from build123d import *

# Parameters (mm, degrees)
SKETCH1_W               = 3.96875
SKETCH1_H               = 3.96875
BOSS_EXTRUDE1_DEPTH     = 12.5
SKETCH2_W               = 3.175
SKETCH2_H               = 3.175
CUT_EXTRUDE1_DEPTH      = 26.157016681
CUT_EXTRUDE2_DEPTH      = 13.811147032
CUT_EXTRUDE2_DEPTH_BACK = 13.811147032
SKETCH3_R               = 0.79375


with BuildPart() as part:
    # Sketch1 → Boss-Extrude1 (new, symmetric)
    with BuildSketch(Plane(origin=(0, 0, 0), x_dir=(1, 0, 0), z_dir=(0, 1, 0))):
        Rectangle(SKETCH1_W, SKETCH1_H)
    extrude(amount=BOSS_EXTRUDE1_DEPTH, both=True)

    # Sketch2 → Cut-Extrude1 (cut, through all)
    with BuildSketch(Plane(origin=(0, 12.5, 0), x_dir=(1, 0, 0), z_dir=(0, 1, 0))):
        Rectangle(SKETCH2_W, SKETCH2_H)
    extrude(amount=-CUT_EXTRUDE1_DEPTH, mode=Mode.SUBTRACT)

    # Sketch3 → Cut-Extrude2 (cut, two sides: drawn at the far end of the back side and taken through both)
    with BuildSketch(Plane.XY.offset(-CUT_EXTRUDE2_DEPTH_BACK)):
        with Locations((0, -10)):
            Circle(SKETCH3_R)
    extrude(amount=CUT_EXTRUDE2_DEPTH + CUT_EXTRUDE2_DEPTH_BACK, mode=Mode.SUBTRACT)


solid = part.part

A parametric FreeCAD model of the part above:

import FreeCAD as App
import Part
import Sketcher
Q = App.Units.Quantity

doc = App.newDocument("Part")
body = doc.addObject("PartDesign::Body", "Body")

sketch1 = doc.addObject("Sketcher::SketchObject", "Sketch")
body.addObject(sketch1)
sketch1.AttachmentSupport = (doc.XZ_Plane, [""])
sketch1.MapMode = "FlatFace"
sketch1.addGeometry([
    Part.LineSegment(App.Vector(-2, -2, 0), App.Vector(-2, 2, 0)),
    Part.LineSegment(App.Vector(-2, 2, 0), App.Vector(2, 2, 0)),
    Part.LineSegment(App.Vector(2, 2, 0), App.Vector(2, -2, 0)),
    Part.LineSegment(App.Vector(2, -2, 0), App.Vector(-2, -2, 0)),
], False)
sketch1.addConstraint([
    Sketcher.Constraint("Coincident", 0, 2, 1, 1),
    Sketcher.Constraint("Coincident", 1, 2, 2, 1),
    Sketcher.Constraint("Coincident", 2, 2, 3, 1),
    Sketcher.Constraint("Coincident", 3, 2, 0, 1),
    Sketcher.Constraint("Vertical", 0),
    Sketcher.Constraint("Horizontal", 1),
    Sketcher.Constraint("Vertical", 2),
    Sketcher.Constraint("Horizontal", 3),
    Sketcher.Constraint("Symmetric", 0, 2, 2, 2, -1, 1),
    Sketcher.Constraint("Equal", 3, 0),
    Sketcher.Constraint("DistanceX", 1, 1, 1, 2, Q("0.15625 in")),
])
pad1 = doc.addObject("PartDesign::Pad", "Pad")
body.addObject(pad1)
pad1.Profile = sketch1
pad1.Length = 25
pad1.Midplane = True

sketch2 = doc.addObject("Sketcher::SketchObject", "Sketch001")
body.addObject(sketch2)
sketch2.AttachmentSupport = (doc.XZ_Plane, [""])
sketch2.MapMode = "FlatFace"
sketch2.AttachmentOffset = App.Placement(App.Vector(0, 0, -12.5), App.Rotation())
sketch2.addGeometry([
    Part.LineSegment(App.Vector(-1.6, -1.6, 0), App.Vector(-1.6, 1.6, 0)),
    Part.LineSegment(App.Vector(-1.6, 1.6, 0), App.Vector(1.6, 1.6, 0)),
    Part.LineSegment(App.Vector(1.6, 1.6, 0), App.Vector(1.6, -1.6, 0)),
    Part.LineSegment(App.Vector(1.6, -1.6, 0), App.Vector(-1.6, -1.6, 0)),
], False)
sketch2.addConstraint([
    Sketcher.Constraint("Coincident", 0, 2, 1, 1),
    Sketcher.Constraint("Coincident", 1, 2, 2, 1),
    Sketcher.Constraint("Coincident", 2, 2, 3, 1),
    Sketcher.Constraint("Coincident", 3, 2, 0, 1),
    Sketcher.Constraint("Vertical", 0),
    Sketcher.Constraint("Horizontal", 1),
    Sketcher.Constraint("Vertical", 2),
    Sketcher.Constraint("Horizontal", 3),
    Sketcher.Constraint("Symmetric", 0, 2, 2, 2, -1, 1),
    Sketcher.Constraint("Equal", 3, 0),
    Sketcher.Constraint("DistanceX", 1, 1, 1, 2, Q("0.125 in")),
])
pocket1 = doc.addObject("PartDesign::Pocket", "Pocket")
body.addObject(pocket1)
pocket1.Profile = sketch2
pocket1.Type = "ThroughAll"
pocket1.Reversed = True

sketch3 = doc.addObject("Sketcher::SketchObject", "Sketch002")
body.addObject(sketch3)
sketch3.AttachmentSupport = (doc.XY_Plane, [""])
sketch3.MapMode = "FlatFace"
sketch3.addGeometry(Part.Circle(App.Vector(0, -10, 0), App.Vector(0, 0, 1), 0.8), False)
sketch3.addConstraint([
    Sketcher.Constraint("PointOnObject", 0, 3, -2),
    Sketcher.Constraint("Diameter", 0, Q("0.0625 in")),
    Sketcher.Constraint("DistanceY", 0, 3, -1, 1, 10.0),
])
pocket2 = doc.addObject("PartDesign::Pocket", "Pocket001")
body.addObject(pocket2)
pocket2.Profile = sketch3
pocket2.Type = "ThroughAll"
pocket2.Midplane = True

doc.recompute()
